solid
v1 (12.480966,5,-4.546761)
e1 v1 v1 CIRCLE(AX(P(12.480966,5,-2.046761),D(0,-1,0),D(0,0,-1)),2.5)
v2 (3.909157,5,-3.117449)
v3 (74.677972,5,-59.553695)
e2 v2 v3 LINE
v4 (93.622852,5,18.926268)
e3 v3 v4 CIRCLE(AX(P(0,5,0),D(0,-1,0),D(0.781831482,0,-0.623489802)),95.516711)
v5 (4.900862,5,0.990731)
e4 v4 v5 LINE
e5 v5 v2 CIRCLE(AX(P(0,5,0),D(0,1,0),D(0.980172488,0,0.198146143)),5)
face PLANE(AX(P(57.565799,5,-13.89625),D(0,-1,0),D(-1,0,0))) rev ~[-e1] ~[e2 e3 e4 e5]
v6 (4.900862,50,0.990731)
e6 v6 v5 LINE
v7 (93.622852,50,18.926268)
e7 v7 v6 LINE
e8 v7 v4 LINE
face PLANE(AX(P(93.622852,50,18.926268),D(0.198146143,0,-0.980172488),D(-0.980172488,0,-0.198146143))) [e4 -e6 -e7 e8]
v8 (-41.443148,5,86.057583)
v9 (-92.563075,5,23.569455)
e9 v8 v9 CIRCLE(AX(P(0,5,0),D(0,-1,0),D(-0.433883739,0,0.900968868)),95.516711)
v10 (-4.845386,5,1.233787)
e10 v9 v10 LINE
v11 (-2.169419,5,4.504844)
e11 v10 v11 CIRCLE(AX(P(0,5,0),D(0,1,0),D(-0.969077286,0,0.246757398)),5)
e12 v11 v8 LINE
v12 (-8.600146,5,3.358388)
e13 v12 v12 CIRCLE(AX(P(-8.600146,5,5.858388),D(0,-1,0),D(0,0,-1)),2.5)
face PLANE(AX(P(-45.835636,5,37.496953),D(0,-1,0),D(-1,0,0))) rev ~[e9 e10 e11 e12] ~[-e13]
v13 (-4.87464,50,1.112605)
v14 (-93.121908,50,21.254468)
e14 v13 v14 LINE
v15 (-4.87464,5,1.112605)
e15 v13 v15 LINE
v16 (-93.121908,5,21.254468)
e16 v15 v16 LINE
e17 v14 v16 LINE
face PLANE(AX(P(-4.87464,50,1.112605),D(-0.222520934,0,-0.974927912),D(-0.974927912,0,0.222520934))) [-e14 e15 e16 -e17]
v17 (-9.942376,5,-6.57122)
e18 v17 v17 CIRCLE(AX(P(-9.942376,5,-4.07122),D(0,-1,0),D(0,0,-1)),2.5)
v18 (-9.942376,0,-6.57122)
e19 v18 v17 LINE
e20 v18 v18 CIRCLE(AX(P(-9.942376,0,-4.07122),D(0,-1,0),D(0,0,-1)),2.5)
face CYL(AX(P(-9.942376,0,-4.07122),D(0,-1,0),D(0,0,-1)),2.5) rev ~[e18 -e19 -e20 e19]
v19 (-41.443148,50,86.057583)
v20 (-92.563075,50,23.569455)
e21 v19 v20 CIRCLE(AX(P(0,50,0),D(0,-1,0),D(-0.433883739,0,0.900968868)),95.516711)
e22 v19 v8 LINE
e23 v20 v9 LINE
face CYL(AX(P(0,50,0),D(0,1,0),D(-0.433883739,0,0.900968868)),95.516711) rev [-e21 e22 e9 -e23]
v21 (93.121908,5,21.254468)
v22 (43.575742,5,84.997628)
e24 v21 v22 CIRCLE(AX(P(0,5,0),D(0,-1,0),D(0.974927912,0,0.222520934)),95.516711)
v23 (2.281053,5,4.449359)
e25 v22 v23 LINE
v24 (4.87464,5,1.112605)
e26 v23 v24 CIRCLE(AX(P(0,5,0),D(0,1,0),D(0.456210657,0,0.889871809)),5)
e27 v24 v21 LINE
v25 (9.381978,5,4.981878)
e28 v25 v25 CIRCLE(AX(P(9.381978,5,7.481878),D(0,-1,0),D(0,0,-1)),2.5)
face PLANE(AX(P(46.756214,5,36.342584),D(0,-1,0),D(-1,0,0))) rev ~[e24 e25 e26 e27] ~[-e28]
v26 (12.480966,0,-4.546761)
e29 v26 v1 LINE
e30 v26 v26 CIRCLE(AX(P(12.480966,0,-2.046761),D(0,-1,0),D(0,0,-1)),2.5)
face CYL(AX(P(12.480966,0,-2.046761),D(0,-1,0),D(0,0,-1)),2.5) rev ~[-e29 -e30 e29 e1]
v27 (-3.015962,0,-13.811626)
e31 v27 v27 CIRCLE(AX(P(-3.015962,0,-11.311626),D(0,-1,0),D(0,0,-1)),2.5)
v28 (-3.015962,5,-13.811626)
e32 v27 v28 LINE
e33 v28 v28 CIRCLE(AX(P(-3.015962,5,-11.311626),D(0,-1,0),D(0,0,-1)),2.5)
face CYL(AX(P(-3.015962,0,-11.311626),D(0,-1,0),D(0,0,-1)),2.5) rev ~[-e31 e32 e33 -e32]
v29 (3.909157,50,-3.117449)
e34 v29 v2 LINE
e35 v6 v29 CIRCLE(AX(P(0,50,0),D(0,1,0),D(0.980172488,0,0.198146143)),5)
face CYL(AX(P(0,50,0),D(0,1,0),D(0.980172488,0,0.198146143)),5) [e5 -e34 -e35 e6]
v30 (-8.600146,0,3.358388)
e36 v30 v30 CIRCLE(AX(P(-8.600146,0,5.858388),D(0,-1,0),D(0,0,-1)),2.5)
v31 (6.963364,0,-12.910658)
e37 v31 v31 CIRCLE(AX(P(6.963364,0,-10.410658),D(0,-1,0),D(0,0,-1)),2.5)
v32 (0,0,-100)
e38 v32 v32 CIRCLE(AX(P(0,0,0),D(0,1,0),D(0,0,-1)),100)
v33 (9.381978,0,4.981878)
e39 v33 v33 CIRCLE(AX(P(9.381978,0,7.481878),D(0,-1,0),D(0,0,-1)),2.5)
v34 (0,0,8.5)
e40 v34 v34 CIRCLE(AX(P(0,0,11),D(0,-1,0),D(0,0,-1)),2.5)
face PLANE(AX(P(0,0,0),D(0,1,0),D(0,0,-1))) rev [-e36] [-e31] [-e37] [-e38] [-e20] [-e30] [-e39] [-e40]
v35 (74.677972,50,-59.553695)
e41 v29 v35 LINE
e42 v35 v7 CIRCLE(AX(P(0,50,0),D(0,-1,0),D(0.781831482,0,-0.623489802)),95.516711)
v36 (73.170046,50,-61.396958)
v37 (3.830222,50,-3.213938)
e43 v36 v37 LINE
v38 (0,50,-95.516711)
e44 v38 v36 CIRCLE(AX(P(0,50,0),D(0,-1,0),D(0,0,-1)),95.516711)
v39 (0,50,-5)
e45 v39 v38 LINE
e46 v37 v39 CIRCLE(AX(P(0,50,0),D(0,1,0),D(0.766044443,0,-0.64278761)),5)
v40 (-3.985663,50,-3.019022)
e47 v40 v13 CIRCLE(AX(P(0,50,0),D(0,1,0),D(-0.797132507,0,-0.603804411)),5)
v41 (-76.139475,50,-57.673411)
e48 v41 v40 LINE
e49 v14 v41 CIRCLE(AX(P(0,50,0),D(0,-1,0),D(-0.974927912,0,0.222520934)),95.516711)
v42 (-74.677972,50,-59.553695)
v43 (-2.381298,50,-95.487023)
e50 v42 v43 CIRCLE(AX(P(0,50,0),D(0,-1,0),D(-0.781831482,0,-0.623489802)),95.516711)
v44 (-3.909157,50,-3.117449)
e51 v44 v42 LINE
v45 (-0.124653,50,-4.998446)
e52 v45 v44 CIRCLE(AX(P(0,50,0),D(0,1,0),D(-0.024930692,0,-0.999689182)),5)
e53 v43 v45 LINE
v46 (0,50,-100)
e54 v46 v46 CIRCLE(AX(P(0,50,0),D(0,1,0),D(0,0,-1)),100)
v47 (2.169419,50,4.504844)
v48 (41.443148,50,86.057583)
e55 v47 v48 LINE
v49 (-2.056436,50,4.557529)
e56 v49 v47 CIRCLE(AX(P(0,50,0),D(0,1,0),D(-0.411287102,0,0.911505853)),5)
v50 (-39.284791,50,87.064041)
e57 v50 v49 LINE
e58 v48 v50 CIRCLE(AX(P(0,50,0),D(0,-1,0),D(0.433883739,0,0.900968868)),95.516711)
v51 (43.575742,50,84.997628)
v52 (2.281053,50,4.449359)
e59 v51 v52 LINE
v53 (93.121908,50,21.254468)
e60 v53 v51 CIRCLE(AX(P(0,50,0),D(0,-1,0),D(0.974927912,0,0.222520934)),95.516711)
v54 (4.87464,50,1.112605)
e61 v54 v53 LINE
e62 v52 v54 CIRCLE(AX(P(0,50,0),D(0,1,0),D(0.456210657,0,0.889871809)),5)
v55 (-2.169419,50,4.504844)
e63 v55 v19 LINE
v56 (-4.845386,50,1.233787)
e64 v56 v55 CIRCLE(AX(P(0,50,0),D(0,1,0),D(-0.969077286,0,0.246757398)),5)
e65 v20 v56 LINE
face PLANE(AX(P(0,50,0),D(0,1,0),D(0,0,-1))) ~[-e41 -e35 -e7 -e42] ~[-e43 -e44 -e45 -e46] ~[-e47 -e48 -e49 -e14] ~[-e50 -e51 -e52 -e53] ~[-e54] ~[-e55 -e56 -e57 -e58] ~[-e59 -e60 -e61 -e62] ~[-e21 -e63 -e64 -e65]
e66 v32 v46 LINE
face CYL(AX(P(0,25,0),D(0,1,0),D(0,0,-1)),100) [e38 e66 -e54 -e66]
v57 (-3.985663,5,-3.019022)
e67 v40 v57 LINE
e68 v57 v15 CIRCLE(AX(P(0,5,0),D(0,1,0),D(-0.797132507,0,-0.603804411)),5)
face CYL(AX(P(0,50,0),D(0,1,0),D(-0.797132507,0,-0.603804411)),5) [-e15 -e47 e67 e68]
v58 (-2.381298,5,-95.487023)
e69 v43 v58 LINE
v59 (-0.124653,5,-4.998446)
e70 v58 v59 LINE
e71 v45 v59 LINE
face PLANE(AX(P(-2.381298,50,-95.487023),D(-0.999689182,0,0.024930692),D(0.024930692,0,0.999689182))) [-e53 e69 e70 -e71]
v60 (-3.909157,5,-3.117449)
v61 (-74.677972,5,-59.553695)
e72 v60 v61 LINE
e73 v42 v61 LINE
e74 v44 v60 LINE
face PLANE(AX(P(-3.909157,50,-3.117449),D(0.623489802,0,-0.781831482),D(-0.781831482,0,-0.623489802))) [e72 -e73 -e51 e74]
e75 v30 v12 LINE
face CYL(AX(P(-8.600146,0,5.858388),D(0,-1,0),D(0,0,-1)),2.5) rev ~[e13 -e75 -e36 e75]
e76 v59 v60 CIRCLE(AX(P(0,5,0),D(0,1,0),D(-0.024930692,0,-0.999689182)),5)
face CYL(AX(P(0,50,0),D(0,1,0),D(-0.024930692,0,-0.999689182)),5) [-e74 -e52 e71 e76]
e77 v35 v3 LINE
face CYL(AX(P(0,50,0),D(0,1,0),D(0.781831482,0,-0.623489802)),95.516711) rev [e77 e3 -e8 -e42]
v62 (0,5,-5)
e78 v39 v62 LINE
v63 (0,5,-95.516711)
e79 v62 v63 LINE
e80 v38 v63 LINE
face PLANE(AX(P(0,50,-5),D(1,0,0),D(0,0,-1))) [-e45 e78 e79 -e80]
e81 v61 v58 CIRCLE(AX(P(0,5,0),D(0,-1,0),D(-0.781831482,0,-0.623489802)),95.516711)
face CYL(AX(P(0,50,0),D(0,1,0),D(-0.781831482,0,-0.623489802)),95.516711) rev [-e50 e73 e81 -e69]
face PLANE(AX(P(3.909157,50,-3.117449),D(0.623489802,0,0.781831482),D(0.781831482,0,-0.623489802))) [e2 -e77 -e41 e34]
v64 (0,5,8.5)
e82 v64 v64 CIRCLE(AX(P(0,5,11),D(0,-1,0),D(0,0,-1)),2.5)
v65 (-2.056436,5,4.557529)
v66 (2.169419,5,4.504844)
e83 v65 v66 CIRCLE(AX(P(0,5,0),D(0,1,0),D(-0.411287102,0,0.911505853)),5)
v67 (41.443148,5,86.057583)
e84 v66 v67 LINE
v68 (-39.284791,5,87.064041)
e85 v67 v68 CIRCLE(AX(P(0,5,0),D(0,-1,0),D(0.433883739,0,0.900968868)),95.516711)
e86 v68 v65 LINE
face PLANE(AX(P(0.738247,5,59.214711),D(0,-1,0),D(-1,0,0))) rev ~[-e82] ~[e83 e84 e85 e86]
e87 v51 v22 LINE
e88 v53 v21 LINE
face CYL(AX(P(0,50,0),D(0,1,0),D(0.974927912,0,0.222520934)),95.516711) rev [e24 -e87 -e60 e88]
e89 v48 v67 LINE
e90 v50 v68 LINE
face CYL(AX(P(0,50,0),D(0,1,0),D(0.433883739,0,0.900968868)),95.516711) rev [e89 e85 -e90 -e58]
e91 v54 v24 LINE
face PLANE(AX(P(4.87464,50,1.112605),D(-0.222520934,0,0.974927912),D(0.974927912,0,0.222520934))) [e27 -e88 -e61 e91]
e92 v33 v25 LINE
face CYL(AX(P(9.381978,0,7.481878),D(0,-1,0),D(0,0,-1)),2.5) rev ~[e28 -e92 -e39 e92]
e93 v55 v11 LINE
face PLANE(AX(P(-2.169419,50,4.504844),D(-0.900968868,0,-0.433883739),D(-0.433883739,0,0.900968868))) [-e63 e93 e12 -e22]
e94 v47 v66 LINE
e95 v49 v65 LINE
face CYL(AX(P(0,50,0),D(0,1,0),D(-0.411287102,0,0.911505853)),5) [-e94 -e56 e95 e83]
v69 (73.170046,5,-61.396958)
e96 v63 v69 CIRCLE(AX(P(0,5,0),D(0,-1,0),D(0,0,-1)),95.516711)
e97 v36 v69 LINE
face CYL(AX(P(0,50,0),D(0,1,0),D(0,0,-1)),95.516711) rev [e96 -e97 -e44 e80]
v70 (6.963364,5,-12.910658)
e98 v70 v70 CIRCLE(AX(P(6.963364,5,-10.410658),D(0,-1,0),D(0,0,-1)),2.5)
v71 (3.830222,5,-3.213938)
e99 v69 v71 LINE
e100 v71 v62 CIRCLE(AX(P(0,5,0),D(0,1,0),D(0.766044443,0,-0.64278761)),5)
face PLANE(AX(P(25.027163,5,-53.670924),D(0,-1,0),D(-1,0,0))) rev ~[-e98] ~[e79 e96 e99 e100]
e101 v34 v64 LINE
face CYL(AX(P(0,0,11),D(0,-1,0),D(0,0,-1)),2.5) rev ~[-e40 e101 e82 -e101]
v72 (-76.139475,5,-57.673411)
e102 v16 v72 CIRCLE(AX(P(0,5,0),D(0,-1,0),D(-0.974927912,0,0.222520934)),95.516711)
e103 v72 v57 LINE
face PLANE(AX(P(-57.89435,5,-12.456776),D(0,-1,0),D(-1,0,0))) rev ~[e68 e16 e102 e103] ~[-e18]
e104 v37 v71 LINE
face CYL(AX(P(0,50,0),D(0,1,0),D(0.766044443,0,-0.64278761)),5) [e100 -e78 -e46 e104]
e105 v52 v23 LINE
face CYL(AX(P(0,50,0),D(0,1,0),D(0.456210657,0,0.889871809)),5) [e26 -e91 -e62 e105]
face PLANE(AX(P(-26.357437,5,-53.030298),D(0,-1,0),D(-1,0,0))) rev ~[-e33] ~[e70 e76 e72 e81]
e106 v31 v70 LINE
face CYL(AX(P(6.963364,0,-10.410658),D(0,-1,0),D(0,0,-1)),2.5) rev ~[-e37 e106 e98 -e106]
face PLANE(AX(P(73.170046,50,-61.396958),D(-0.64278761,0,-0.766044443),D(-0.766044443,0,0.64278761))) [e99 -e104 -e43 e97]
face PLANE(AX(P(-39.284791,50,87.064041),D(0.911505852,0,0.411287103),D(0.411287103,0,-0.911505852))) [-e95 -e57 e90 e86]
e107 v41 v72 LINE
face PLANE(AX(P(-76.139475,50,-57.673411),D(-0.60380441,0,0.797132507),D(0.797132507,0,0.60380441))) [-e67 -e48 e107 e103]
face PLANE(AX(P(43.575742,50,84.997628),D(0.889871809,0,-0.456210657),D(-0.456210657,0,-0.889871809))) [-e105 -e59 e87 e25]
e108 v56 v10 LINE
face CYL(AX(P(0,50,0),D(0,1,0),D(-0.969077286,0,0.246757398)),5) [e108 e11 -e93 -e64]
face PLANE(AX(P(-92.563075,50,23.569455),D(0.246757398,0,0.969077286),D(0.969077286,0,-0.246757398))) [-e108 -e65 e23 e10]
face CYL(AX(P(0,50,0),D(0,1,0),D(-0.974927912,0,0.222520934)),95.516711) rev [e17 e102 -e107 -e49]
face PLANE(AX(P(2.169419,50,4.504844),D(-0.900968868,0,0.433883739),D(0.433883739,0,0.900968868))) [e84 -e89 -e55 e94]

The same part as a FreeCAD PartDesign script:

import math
import FreeCAD as App
import Part
import Sketcher
from FreeCAD import Vector
Q = App.Units.Quantity


def add_polygon(sketch, points):
    """Adds a closed chain of lines whose ends are joined by coincident constraints."""
    first, n = sketch.GeometryCount, len(points)
    for a, b in zip(points, points[1:] + points[:1]):
        sketch.addGeometry(Part.LineSegment(App.Vector(*a, 0), App.Vector(*b, 0)), False)
    for i in range(n):
        sketch.addConstraint(Sketcher.Constraint("Coincident", first + i, 2, first + (i + 1) % n, 1))

doc = App.newDocument("Part")
body = doc.addObject("PartDesign::Body", "Body")

# Sketch on XY plane
sketch1 = doc.addObject("Sketcher::SketchObject", "Sketch")
body.addObject(sketch1)
sketch1.AttachmentSupport = (doc.XY_Plane, [""])
sketch1.MapMode = "FlatFace"
add_polygon(sketch1, [(0, 50), (0, 0), (100, 0), (100, 50)])  # lines 0-3
sketch1.addConstraint([
    Sketcher.Constraint("Vertical", 0),
    Sketcher.Constraint("Horizontal", 1),
    Sketcher.Constraint("Vertical", 2),
    Sketcher.Constraint("Horizontal", 3),
    Sketcher.Constraint("Coincident", 0, 2, -1, 1),
    Sketcher.Constraint("DistanceX", 1, 1, 1, 2, 100.0),
    Sketcher.Constraint("DistanceY", 0, 2, 0, 1, 50.0),
])
revolution = doc.addObject("PartDesign::Revolution", "Revolution")
body.addObject(revolution)
revolution.Profile = sketch1
revolution.ReferenceAxis = (sketch1, ["V_Axis"])
revolution.Angle = 360

# Sketch on XZ plane
sketch2 = doc.addObject("Sketcher::SketchObject", "Sketch001")
body.addObject(sketch2)
sketch2.AttachmentSupport = (doc.XZ_Plane, [""])
sketch2.MapMode = "FlatFace"
sketch2.AttachmentOffset = App.Placement(Vector(0, 0, -50), App.Rotation())
sketch2.addGeometry([
    Part.LineSegment(Vector(0, -95.5, 0), Vector(0, -5, 0)),  # 0
    Part.ArcOfCircle(Part.Circle(Vector(0, 0, 0), Vector(0, 0, 1), 5), math.radians(-90), math.radians(-40)),  # 1
    Part.LineSegment(Vector(3.8, -3.2, 0), Vector(73.2, -61.4, 0)),  # 2
    Part.ArcOfCircle(Part.Circle(Vector(0, 0, 0), Vector(0, 0, 1), 95.5), math.radians(-90), math.radians(-40)),  # 3
    Part.LineSegment(Vector(74.7, -59.6, 0), Vector(3.9, -3.1, 0)),  # 4
    Part.ArcOfCircle(Part.Circle(Vector(0, 0, 0), Vector(0, 0, 1), 5), math.radians(-39), math.radians(11)),  # 5
    Part.LineSegment(Vector(4.9, 1, 0), Vector(93.6, 18.9, 0)),  # 6
    Part.ArcOfCircle(Part.Circle(Vector(0, 0, 0), Vector(0, 0, 1), 95.5), math.radians(-39), math.radians(11)),  # 7
    Part.LineSegment(Vector(93.1, 21.3, 0), Vector(4.9, 1.1, 0)),  # 8
    Part.ArcOfCircle(Part.Circle(Vector(0, 0, 0), Vector(0, 0, 1), 5), math.radians(13), math.radians(63)),  # 9
    Part.LineSegment(Vector(2.3, 4.4, 0), Vector(43.6, 85, 0)),  # 10
    Part.ArcOfCircle(Part.Circle(Vector(0, 0, 0), Vector(0, 0, 1), 95.5), math.radians(13), math.radians(63)),  # 11
    Part.LineSegment(Vector(41.4, 86.1, 0), Vector(2.2, 4.5, 0)),  # 12
    Part.ArcOfCircle(Part.Circle(Vector(0, 0, 0), Vector(0, 0, 1), 5), math.radians(64), math.radians(114)),  # 13
    Part.LineSegment(Vector(-2.1, 4.6, 0), Vector(-39.3, 87.1, 0)),  # 14
    Part.ArcOfCircle(Part.Circle(Vector(0, 0, 0), Vector(0, 0, 1), 95.5), math.radians(64), math.radians(114)),  # 15
    Part.LineSegment(Vector(-41.4, 86.1, 0), Vector(-2.2, 4.5, 0)),  # 16
    Part.ArcOfCircle(Part.Circle(Vector(0, 0, 0), Vector(0, 0, 1), 5), math.radians(116), math.radians(166)),  # 17
    Part.LineSegment(Vector(-4.8, 1.2, 0), Vector(-92.6, 23.6, 0)),  # 18
    Part.ArcOfCircle(Part.Circle(Vector(0, 0, 0), Vector(0, 0, 1), 95.5), math.radians(116), math.radians(166)),  # 19
    Part.LineSegment(Vector(-93.1, 21.3, 0), Vector(-4.9, 1.1, 0)),  # 20
    Part.ArcOfCircle(Part.Circle(Vector(0, 0, 0), Vector(0, 0, 1), 5), math.radians(167), math.radians(217)),  # 21
    Part.LineSegment(Vector(-4, -3, 0), Vector(-76.1, -57.7, 0)),  # 22
    Part.ArcOfCircle(Part.Circle(Vector(0, 0, 0), Vector(0, 0, 1), 95.5), math.radians(167), math.radians(217)),  # 23
    Part.LineSegment(Vector(-74.7, -59.6, 0), Vector(-3.9, -3.1, 0)),  # 24
    Part.ArcOfCircle(Part.Circle(Vector(0, 0, 0), Vector(0, 0, 1), 5), math.radians(-141), math.radians(-91)),  # 25
    Part.LineSegment(Vector(-0.1, -5, 0), Vector(-2.4, -95.5, 0)),  # 26
    Part.ArcOfCircle(Part.Circle(Vector(0, 0, 0), Vector(0, 0, 1), 95.5), math.radians(-141), math.radians(-91)),  # 27
], False)
sketch2.addConstraint([
    Sketcher.Constraint("Coincident", 0, 2, 1, 1),
    Sketcher.Constraint("Coincident", 1, 2, 2, 1),
    Sketcher.Constraint("Coincident", 2, 2, 3, 2),
    Sketcher.Constraint("Coincident", 3, 1, 0, 1),
    Sketcher.Constraint("Coincident", 4, 2, 5, 1),
    Sketcher.Constraint("Coincident", 5, 2, 6, 1),
    Sketcher.Constraint("Coincident", 6, 2, 7, 2),
    Sketcher.Constraint("Coincident", 7, 1, 4, 1),
    Sketcher.Constraint("Coincident", 8, 2, 9, 1),
    Sketcher.Constraint("Coincident", 9, 2, 10, 1),
    Sketcher.Constraint("Coincident", 10, 2, 11, 2),
    Sketcher.Constraint("Coincident", 11, 1, 8, 1),
    Sketcher.Constraint("Coincident", 12, 2, 13, 1),
    Sketcher.Constraint("Coincident", 13, 2, 14, 1),
    Sketcher.Constraint("Coincident", 14, 2, 15, 2),
    Sketcher.Constraint("Coincident", 15, 1, 12, 1),
    Sketcher.Constraint("Coincident", 16, 2, 17, 1),
    Sketcher.Constraint("Coincident", 17, 2, 18, 1),
    Sketcher.Constraint("Coincident", 18, 2, 19, 2),
    Sketcher.Constraint("Coincident", 19, 1, 16, 1),
    Sketcher.Constraint("Coincident", 20, 2, 21, 1),
    Sketcher.Constraint("Coincident", 21, 2, 22, 1),
    Sketcher.Constraint("Coincident", 22, 2, 23, 2),
    Sketcher.Constraint("Coincident", 23, 1, 20, 1),
    Sketcher.Constraint("Coincident", 24, 2, 25, 1),
    Sketcher.Constraint("Coincident", 25, 2, 26, 1),
    Sketcher.Constraint("Coincident", 26, 2, 27, 2),
    Sketcher.Constraint("Coincident", 27, 1, 24, 1),
    Sketcher.Constraint("Vertical", 0),
    Sketcher.Constraint("Coincident", 1, 3, -1, 1),
    Sketcher.Constraint("Coincident", 3, 3, -1, 1),
    Sketcher.Constraint("Coincident", 5, 3, -1, 1),
    Sketcher.Constraint("Coincident", 7, 3, -1, 1),
    Sketcher.Constraint("Coincident", 9, 3, -1, 1),
    Sketcher.Constraint("Coincident", 11, 3, -1, 1),
    Sketcher.Constraint("Coincident", 13, 3, -1, 1),
    Sketcher.Constraint("Coincident", 15, 3, -1, 1),
    Sketcher.Constraint("Coincident", 17, 3, -1, 1),
    Sketcher.Constraint("Coincident", 19, 3, -1, 1),
    Sketcher.Constraint("Coincident", 21, 3, -1, 1),
    Sketcher.Constraint("Coincident", 23, 3, -1, 1),
    Sketcher.Constraint("Coincident", 25, 3, -1, 1),
    Sketcher.Constraint("Coincident", 27, 3, -1, 1),
    Sketcher.Constraint("Equal", 1, 5),
    Sketcher.Constraint("Equal", 3, 7),
    Sketcher.Constraint("Equal", 5, 9),
    Sketcher.Constraint("Equal", 7, 11),
    Sketcher.Constraint("Equal", 9, 13),
    Sketcher.Constraint("Equal", 11, 15),
    Sketcher.Constraint("Equal", 13, 17),
    Sketcher.Constraint("Equal", 15, 19),
    Sketcher.Constraint("Equal", 17, 21),
    Sketcher.Constraint("Equal", 19, 23),
    Sketcher.Constraint("Equal", 21, 25),
    Sketcher.Constraint("Equal", 23, 27),
    Sketcher.Constraint("PointOnObject", 0, 2, -2),
    Sketcher.Constraint("Horizontal", 12, 2, 16, 2),
    Sketcher.Constraint("Horizontal", 15, 1, 19, 1),
    Sketcher.Constraint("Horizontal", 8, 2, 20, 2),
    Sketcher.Constraint("Horizontal", 11, 1, 23, 1),
    Sketcher.Constraint("Horizontal", 4, 2, 24, 2),
    Sketcher.Constraint("Horizontal", 7, 1, 27, 1),
    Sketcher.Constraint("Radius", 1, 5.0),
    Sketcher.Constraint("Angle", 2, Q("-40 deg")),
    Sketcher.Constraint("Radius", 3, 95.516711),
    Sketcher.Constraint("DistanceY", 6, 2, 11, 1, 2.3282),
    Sketcher.Constraint("DistanceX", 18, 2, 22, 2, 16.4236),
    Sketcher.Constraint("DistanceY", 3, 1, 22, 2, 37.8433),
    Sketcher.Constraint("DistanceY", 22, 2, 17, 2, 58.907198),
    Sketcher.Constraint("DistanceY", 1, 2, -1, 1, 3.213938),
    Sketcher.Constraint("DistanceY", 4, 2, -1, 1, 3.117449),
    Sketcher.Constraint("DistanceY", -1, 1, 5, 2, 0.990731),
    Sketcher.Constraint("DistanceX", -1, 1, 7, 1, 74.677972),
    Sketcher.Constraint("DistanceX", -1, 1, 8, 2, 4.87464),
    Sketcher.Constraint("DistanceY", -1, 1, 9, 2, 4.449359),
    Sketcher.Constraint("DistanceX", -1, 1, 10, 2, 43.575742),
    Sketcher.Constraint("DistanceX", -1, 1, 12, 2, 2.169419),
    Sketcher.Constraint("DistanceY", -1, 1, 13, 2, 4.557529),
    Sketcher.Constraint("DistanceX", 14, 2, -1, 1, 39.284791),
    Sketcher.Constraint("DistanceX", 5, 2, 6, 2, 88.72199),
    Sketcher.Constraint("DistanceX", 14, 2, 15, 1, 80.727939),
    Sketcher.Constraint("DistanceY", 21, 2, 17, 2, 4.252809),
    Sketcher.Constraint("DistanceX", 21, 2, 25, 2, 3.861009),
    Sketcher.Constraint("DistanceY", 3, 1, 26, 2, 0.029688),
])
pocket1 = doc.addObject("PartDesign::Pocket", "Pocket")
body.addObject(pocket1)
pocket1.Profile = sketch2
pocket1.Length = 45
pocket1.Reversed = True

# Sketch on XZ plane
sketch3 = doc.addObject("Sketcher::SketchObject", "Sketch002")
body.addObject(sketch3)
sketch3.AttachmentSupport = (doc.XZ_Plane, [""])
sketch3.MapMode = "FlatFace"
sketch3.addGeometry([
    Part.Circle(Vector(0, 11, 0), Vector(0, 0, 1), 2.5),  # 0
    Part.Circle(Vector(9.4, 7.5, 0), Vector(0, 0, 1), 2.5),  # 1
    Part.Circle(Vector(12.5, -2, 0), Vector(0, 0, 1), 2.5),  # 2
    Part.Circle(Vector(7, -10.4, 0), Vector(0, 0, 1), 2.5),  # 3
    Part.Circle(Vector(-3, -11.3, 0), Vector(0, 0, 1), 2.5),  # 4
    Part.Circle(Vector(-9.9, -4.1, 0), Vector(0, 0, 1), 2.5),  # 5
    Part.Circle(Vector(-8.6, 5.9, 0), Vector(0, 0, 1), 2.5),  # 6
], False)
sketch3.addConstraint([
    Sketcher.Constraint("Equal", 0, 1),
    Sketcher.Constraint("Equal", 1, 2),
    Sketcher.Constraint("Equal", 2, 3),
    Sketcher.Constraint("Equal", 3, 4),
    Sketcher.Constraint("Equal", 4, 5),
    Sketcher.Constraint("Equal", 5, 6),
    Sketcher.Constraint("PointOnObject", 0, 3, -2),
    Sketcher.Constraint("Diameter", 0, 5.0),
    Sketcher.Constraint("DistanceY", -1, 1, 0, 3, 11.0),
    Sketcher.Constraint("DistanceY", 2, 3, -1, 1, 2.046761),
    Sketcher.Constraint("DistanceX", 4, 3, -1, 1, 3.015962),
    Sketcher.Constraint("DistanceY", 5, 3, -1, 1, 4.07122),
    Sketcher.Constraint("DistanceX", 1, 3, 2, 3, 3.098989),
    Sketcher.Constraint("DistanceY", 2, 3, 1, 3, 9.528639),
    Sketcher.Constraint("DistanceY", 4, 3, 3, 3, 0.900969),
    Sketcher.Constraint("DistanceX", 4, 3, 2, 3, 15.496928),
    Sketcher.Constraint("DistanceX", 5, 3, 3, 3, 16.90574),
    Sketcher.Constraint("DistanceX", 5, 3, 2, 3, 22.423342),
    Sketcher.Constraint("DistanceX", 5, 3, 6, 3, 1.342229),
    Sketcher.Constraint("DistanceY", 6, 3, 1, 3, 1.62349),
    Sketcher.Constraint("DistanceY", 3, 3, -1, 1, 10.410658),
])
pocket2 = doc.addObject("PartDesign::Pocket", "Pocket001")
body.addObject(pocket2)
pocket2.Profile = sketch3
pocket2.Length = 10

doc.recompute()
